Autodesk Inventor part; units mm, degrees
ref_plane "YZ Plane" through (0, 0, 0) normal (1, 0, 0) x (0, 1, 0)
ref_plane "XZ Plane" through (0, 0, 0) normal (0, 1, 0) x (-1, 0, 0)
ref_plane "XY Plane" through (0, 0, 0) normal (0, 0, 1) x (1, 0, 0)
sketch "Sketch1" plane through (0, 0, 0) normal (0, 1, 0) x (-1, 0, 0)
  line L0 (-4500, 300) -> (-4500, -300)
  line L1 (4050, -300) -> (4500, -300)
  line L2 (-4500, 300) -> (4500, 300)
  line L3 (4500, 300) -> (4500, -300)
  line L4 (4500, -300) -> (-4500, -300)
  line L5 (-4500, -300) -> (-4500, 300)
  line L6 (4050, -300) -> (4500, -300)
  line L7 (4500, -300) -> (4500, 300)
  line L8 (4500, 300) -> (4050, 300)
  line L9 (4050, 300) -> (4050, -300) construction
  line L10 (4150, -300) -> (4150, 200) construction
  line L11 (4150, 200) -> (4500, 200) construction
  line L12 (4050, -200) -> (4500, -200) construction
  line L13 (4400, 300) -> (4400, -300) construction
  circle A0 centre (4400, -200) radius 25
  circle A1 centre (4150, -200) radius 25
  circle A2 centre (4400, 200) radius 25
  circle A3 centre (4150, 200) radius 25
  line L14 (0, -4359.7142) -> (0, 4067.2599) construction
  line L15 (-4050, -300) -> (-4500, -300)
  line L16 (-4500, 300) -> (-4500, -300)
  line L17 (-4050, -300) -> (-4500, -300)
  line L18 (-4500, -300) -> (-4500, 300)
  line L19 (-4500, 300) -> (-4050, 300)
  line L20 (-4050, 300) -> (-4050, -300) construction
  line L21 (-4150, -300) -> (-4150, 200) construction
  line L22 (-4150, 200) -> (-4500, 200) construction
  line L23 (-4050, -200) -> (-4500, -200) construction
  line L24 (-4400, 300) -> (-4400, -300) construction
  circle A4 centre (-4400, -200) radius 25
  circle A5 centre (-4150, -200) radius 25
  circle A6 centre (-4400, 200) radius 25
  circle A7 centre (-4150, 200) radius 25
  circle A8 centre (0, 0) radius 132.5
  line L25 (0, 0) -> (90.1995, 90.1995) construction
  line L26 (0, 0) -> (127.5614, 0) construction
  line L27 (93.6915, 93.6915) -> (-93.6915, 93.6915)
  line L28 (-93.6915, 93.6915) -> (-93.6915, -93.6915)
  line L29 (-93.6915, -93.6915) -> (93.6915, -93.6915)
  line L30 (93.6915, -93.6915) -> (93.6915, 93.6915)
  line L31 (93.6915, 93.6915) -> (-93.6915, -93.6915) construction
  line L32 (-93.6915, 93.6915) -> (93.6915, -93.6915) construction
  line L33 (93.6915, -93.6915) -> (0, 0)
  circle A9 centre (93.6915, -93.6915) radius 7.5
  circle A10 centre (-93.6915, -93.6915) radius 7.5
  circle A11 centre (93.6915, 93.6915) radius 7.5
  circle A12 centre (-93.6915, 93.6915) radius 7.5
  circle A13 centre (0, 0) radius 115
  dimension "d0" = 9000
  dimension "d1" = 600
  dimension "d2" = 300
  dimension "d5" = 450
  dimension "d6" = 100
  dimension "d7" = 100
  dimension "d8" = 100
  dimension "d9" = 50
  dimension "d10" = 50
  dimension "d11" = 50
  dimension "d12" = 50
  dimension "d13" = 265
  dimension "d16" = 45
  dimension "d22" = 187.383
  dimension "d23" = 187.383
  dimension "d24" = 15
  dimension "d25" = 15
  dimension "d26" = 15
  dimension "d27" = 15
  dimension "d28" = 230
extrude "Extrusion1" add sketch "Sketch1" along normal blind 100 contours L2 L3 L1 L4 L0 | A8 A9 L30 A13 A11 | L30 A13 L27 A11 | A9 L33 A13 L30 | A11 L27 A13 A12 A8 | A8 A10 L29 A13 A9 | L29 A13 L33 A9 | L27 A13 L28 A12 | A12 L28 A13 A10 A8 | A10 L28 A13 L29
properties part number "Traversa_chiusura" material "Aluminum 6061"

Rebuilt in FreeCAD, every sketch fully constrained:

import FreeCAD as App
import Part
import Sketcher
from FreeCAD import Vector
Q = App.Units.Quantity


def add_polygon(sketch, points):
    """Adds a closed chain of lines whose ends are joined by coincident constraints."""
    first, n = sketch.GeometryCount, len(points)
    for a, b in zip(points, points[1:] + points[:1]):
        sketch.addGeometry(Part.LineSegment(App.Vector(*a, 0), App.Vector(*b, 0)), False)
    for i in range(n):
        sketch.addConstraint(Sketcher.Constraint("Coincident", first + i, 2, first + (i + 1) % n, 1))

doc = App.newDocument("Part")
body = doc.addObject("PartDesign::Body", "Body")

# Sketch on XZ plane
sketch1 = body.newObject("Sketcher::SketchObject", "Sketch")
sketch1.AttachmentSupport = (doc.getObject("XZ_Plane"), [""])
sketch1.MapMode = "FlatFace"
add_polygon(sketch1, [(4500, 300), (4500, -300), (-4500, -300), (-4500, 300)])  # lines 0-3
sketch1.addGeometry(Part.Circle(Vector(4400, -200, 0), Vector(0, 0, 1), 25), False)  # 4
sketch1.addGeometry(Part.Circle(Vector(4150, -200, 0), Vector(0, 0, 1), 25), False)  # 5
sketch1.addGeometry(Part.Circle(Vector(-4150, -200, 0), Vector(0, 0, 1), 25), False)  # 6
sketch1.addGeometry(Part.Circle(Vector(-4400, -200, 0), Vector(0, 0, 1), 25), False)  # 7
sketch1.addGeometry(Part.Circle(Vector(4400, 200, 0), Vector(0, 0, 1), 25), False)  # 8
sketch1.addGeometry(Part.Circle(Vector(4150, 200, 0), Vector(0, 0, 1), 25), False)  # 9
sketch1.addGeometry(Part.Circle(Vector(-93.6915, 93.6915, 0), Vector(0, 0, 1), 7.5), False)  # 10
sketch1.addGeometry(Part.Circle(Vector(93.6915, 93.6915, 0), Vector(0, 0, 1), 7.5), False)  # 11
sketch1.addGeometry(Part.Circle(Vector(93.6915, -93.6915, 0), Vector(0, 0, 1), 7.5), False)  # 12
sketch1.addGeometry(Part.Circle(Vector(-93.6915, -93.6915, 0), Vector(0, 0, 1), 7.5), False)  # 13
sketch1.addGeometry(Part.Circle(Vector(-4150, 200, 0), Vector(0, 0, 1), 25), False)  # 14
sketch1.addGeometry(Part.Circle(Vector(-4400, 200, 0), Vector(0, 0, 1), 25), False)  # 15
sketch1.addGeometry(Part.Circle(Vector(0, 0, 0), Vector(0, 0, 1), 115), False)  # 16
sketch1.addConstraint(Sketcher.Constraint("Vertical", 0))
sketch1.addConstraint(Sketcher.Constraint("Horizontal", 1))
sketch1.addConstraint(Sketcher.Constraint("Vertical", 2))
sketch1.addConstraint(Sketcher.Constraint("Horizontal", 3))
sketch1.addConstraint(Sketcher.Constraint("Coincident", 16, 3, -1, 1))
sketch1.addConstraint(Sketcher.Constraint("Equal", 4, 5))
sketch1.addConstraint(Sketcher.Constraint("Equal", 5, 6))
sketch1.addConstraint(Sketcher.Constraint("Equal", 6, 7))
sketch1.addConstraint(Sketcher.Constraint("Equal", 7, 8))
sketch1.addConstraint(Sketcher.Constraint("Equal", 8, 9))
sketch1.addConstraint(Sketcher.Constraint("Equal", 10, 11))
sketch1.addConstraint(Sketcher.Constraint("Equal", 11, 12))
sketch1.addConstraint(Sketcher.Constraint("Equal", 12, 13))
sketch1.addConstraint(Sketcher.Constraint("Equal", 9, 14))
sketch1.addConstraint(Sketcher.Constraint("Equal", 14, 15))
sketch1.addConstraint(Sketcher.Constraint("Symmetric", 7, 3, 8, 3, -1, 1))
sketch1.addConstraint(Sketcher.Constraint("Symmetric", 6, 3, 9, 3, -1, 1))
sketch1.addConstraint(Sketcher.Constraint("Symmetric", 10, 3, 12, 3, -1, 1))
sketch1.addConstraint(Sketcher.Constraint("Symmetric", 11, 3, 13, 3, -1, 1))
sketch1.addConstraint(Sketcher.Constraint("Symmetric", 5, 3, 14, 3, -1, 1))
sketch1.addConstraint(Sketcher.Constraint("Symmetric", 4, 3, 15, 3, -1, 1))
sketch1.addConstraint(Sketcher.Constraint("Symmetric", 0, 2, 2, 2, -1, 1))
sketch1.addConstraint(Sketcher.Constraint("Symmetric", 5, 3, 6, 3, -2))
sketch1.addConstraint(Sketcher.Constraint("Symmetric", 4, 3, 7, 3, -2))
sketch1.addConstraint(Sketcher.Constraint("Symmetric", 10, 3, 11, 3, -2))
sketch1.addConstraint(Sketcher.Constraint("Horizontal", 4, 3, 5, 3))
sketch1.addConstraint(Sketcher.Constraint("Diameter", 4, Q("50 mm")))
sketch1.addConstraint(Sketcher.Constraint("Diameter", 10, Q("15 mm")))
sketch1.addConstraint(Sketcher.Constraint("Diameter", 16, Q("230 mm")))
sketch1.addConstraint(Sketcher.Constraint("DistanceX", 1, 2, 1, 1, Q("9000 mm")))
sketch1.addConstraint(Sketcher.Constraint("DistanceY", 0, 2, 0, 1, Q("600 mm")))
sketch1.addConstraint(Sketcher.Constraint("DistanceX", 4, 3, 0, 2, Q("100 mm")))
sketch1.addConstraint(Sketcher.Constraint("DistanceY", 0, 2, 4, 3, Q("100 mm")))
sketch1.addConstraint(Sketcher.Constraint("DistanceX", -1, 1, 5, 3, Q("4150 mm")))
sketch1.addConstraint(Sketcher.Constraint("DistanceX", 10, 3, 11, 3, Q("187.383 mm")))
sketch1.addConstraint(Sketcher.Constraint("DistanceY", 12, 3, 11, 3, Q("187.383 mm")))
pad1 = body.newObject("PartDesign::Pad", "Pad")
pad1.Profile = sketch1
pad1.Length = 100
pad1.Reversed = True

doc.recompute()
